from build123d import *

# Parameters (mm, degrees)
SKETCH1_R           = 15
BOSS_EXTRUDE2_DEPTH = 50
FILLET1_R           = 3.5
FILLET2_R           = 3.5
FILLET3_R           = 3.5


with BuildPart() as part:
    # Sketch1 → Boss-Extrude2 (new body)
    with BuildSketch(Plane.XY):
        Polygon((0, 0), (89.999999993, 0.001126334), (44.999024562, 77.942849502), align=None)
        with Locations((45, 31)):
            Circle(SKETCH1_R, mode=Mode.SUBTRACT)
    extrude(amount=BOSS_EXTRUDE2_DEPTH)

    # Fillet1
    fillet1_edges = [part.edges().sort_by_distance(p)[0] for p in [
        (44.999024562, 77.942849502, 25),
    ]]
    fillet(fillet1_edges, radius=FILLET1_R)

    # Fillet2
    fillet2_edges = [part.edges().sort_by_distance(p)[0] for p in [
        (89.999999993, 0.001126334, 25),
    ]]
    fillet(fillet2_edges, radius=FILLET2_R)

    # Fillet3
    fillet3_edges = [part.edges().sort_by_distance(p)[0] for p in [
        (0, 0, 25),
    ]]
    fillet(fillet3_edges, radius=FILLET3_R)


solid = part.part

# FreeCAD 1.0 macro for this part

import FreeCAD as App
import Part
import Sketcher
from FreeCAD import Vector


def edges_at(feature, points):
    """Names of the edges that pass closest to the given points."""
    edges = feature.Shape.Edges
    near = lambda p: min(range(len(edges)), key=lambda i: edges[i].distToShape(Part.Vertex(*p))[0])
    return sorted({f"Edge{near(p) + 1}" for p in points})

doc = App.newDocument("Part")
params = doc.addObject("Spreadsheet::Sheet", "Params")
for row, (alias, value) in enumerate([
    ("sketch1_diameter", "30 mm"),
    ("sketch1_length", "90 mm"),
    ("pad1_length", "50 mm"),
    ("fillet_radius", "3.5 mm"),
    ("fillet2_radius", "3.5 mm"),
    ("fillet3_radius", "3.5 mm"),
], start=1):
    params.set(f"A{row}", alias)
    params.set(f"B{row}", "=" + value)
    params.setAlias(f"B{row}", alias)

body = doc.addObject("PartDesign::Body", "Body")

sketch1 = body.newObject("Sketcher::SketchObject", "Sketch")
sketch1.AttachmentSupport = (doc.getObject("XY_Plane"), [""])
sketch1.MapMode = "FlatFace"
sketch1.addGeometry([
    Part.LineSegment(Vector(0, 0, 0), Vector(90, 0, 0)),
    Part.LineSegment(Vector(90, 0, 0), Vector(45, 78, 0)),
    Part.LineSegment(Vector(45, 78, 0), Vector(0, 0, 0)),
    Part.Circle(Vector(45, 31, 0), Vector(0, 0, 1), 15),
], False)
sketch1.addConstraint([
    Sketcher.Constraint("Coincident", 0, 2, 1, 1),
    Sketcher.Constraint("Coincident", 1, 2, 2, 1),
    Sketcher.Constraint("Coincident", 2, 2, 0, 1),
    Sketcher.Constraint("Coincident", 2, 2, -1, 1),
    Sketcher.Constraint("Equal", 0, 1),
    Sketcher.Constraint("Equal", 1, 2),
    Sketcher.Constraint("Diameter", 3, 30.0),
    Sketcher.Constraint("Distance", 0, 90.0),
    Sketcher.Constraint("DistanceX", -1, 1, 3, 3, 45.0),
    Sketcher.Constraint("DistanceY", -1, 1, 3, 3, 31.0),
    Sketcher.Constraint("DistanceY", -1, 1, 1, 2, 77.94285),
])
sketch1.setExpression("Constraints[6]", "Params.sketch1_diameter")
sketch1.setExpression("Constraints[7]", "Params.sketch1_length")
pad1 = body.newObject("PartDesign::Pad", "Pad")
pad1.Profile = sketch1
pad1.setExpression("Length", "Params.pad1_length")
doc.recompute()

fillet = body.newObject("PartDesign::Fillet", "Fillet")
fillet.Base = (pad1, edges_at(pad1, [(44.999, 77.943, 25)]))
fillet.setExpression("Radius", "Params.fillet_radius")
doc.recompute()

fillet2 = body.newObject("PartDesign::Fillet", "Fillet001")
fillet2.Base = (fillet, edges_at(fillet, [(90, 0.001, 25)]))
fillet2.setExpression("Radius", "Params.fillet2_radius")
doc.recompute()

fillet3 = body.newObject("PartDesign::Fillet", "Fillet002")
fillet3.Base = (fillet2, edges_at(fillet2, [(0, 0, 25)]))
fillet3.setExpression("Radius", "Params.fillet3_radius")

doc.recompute()
